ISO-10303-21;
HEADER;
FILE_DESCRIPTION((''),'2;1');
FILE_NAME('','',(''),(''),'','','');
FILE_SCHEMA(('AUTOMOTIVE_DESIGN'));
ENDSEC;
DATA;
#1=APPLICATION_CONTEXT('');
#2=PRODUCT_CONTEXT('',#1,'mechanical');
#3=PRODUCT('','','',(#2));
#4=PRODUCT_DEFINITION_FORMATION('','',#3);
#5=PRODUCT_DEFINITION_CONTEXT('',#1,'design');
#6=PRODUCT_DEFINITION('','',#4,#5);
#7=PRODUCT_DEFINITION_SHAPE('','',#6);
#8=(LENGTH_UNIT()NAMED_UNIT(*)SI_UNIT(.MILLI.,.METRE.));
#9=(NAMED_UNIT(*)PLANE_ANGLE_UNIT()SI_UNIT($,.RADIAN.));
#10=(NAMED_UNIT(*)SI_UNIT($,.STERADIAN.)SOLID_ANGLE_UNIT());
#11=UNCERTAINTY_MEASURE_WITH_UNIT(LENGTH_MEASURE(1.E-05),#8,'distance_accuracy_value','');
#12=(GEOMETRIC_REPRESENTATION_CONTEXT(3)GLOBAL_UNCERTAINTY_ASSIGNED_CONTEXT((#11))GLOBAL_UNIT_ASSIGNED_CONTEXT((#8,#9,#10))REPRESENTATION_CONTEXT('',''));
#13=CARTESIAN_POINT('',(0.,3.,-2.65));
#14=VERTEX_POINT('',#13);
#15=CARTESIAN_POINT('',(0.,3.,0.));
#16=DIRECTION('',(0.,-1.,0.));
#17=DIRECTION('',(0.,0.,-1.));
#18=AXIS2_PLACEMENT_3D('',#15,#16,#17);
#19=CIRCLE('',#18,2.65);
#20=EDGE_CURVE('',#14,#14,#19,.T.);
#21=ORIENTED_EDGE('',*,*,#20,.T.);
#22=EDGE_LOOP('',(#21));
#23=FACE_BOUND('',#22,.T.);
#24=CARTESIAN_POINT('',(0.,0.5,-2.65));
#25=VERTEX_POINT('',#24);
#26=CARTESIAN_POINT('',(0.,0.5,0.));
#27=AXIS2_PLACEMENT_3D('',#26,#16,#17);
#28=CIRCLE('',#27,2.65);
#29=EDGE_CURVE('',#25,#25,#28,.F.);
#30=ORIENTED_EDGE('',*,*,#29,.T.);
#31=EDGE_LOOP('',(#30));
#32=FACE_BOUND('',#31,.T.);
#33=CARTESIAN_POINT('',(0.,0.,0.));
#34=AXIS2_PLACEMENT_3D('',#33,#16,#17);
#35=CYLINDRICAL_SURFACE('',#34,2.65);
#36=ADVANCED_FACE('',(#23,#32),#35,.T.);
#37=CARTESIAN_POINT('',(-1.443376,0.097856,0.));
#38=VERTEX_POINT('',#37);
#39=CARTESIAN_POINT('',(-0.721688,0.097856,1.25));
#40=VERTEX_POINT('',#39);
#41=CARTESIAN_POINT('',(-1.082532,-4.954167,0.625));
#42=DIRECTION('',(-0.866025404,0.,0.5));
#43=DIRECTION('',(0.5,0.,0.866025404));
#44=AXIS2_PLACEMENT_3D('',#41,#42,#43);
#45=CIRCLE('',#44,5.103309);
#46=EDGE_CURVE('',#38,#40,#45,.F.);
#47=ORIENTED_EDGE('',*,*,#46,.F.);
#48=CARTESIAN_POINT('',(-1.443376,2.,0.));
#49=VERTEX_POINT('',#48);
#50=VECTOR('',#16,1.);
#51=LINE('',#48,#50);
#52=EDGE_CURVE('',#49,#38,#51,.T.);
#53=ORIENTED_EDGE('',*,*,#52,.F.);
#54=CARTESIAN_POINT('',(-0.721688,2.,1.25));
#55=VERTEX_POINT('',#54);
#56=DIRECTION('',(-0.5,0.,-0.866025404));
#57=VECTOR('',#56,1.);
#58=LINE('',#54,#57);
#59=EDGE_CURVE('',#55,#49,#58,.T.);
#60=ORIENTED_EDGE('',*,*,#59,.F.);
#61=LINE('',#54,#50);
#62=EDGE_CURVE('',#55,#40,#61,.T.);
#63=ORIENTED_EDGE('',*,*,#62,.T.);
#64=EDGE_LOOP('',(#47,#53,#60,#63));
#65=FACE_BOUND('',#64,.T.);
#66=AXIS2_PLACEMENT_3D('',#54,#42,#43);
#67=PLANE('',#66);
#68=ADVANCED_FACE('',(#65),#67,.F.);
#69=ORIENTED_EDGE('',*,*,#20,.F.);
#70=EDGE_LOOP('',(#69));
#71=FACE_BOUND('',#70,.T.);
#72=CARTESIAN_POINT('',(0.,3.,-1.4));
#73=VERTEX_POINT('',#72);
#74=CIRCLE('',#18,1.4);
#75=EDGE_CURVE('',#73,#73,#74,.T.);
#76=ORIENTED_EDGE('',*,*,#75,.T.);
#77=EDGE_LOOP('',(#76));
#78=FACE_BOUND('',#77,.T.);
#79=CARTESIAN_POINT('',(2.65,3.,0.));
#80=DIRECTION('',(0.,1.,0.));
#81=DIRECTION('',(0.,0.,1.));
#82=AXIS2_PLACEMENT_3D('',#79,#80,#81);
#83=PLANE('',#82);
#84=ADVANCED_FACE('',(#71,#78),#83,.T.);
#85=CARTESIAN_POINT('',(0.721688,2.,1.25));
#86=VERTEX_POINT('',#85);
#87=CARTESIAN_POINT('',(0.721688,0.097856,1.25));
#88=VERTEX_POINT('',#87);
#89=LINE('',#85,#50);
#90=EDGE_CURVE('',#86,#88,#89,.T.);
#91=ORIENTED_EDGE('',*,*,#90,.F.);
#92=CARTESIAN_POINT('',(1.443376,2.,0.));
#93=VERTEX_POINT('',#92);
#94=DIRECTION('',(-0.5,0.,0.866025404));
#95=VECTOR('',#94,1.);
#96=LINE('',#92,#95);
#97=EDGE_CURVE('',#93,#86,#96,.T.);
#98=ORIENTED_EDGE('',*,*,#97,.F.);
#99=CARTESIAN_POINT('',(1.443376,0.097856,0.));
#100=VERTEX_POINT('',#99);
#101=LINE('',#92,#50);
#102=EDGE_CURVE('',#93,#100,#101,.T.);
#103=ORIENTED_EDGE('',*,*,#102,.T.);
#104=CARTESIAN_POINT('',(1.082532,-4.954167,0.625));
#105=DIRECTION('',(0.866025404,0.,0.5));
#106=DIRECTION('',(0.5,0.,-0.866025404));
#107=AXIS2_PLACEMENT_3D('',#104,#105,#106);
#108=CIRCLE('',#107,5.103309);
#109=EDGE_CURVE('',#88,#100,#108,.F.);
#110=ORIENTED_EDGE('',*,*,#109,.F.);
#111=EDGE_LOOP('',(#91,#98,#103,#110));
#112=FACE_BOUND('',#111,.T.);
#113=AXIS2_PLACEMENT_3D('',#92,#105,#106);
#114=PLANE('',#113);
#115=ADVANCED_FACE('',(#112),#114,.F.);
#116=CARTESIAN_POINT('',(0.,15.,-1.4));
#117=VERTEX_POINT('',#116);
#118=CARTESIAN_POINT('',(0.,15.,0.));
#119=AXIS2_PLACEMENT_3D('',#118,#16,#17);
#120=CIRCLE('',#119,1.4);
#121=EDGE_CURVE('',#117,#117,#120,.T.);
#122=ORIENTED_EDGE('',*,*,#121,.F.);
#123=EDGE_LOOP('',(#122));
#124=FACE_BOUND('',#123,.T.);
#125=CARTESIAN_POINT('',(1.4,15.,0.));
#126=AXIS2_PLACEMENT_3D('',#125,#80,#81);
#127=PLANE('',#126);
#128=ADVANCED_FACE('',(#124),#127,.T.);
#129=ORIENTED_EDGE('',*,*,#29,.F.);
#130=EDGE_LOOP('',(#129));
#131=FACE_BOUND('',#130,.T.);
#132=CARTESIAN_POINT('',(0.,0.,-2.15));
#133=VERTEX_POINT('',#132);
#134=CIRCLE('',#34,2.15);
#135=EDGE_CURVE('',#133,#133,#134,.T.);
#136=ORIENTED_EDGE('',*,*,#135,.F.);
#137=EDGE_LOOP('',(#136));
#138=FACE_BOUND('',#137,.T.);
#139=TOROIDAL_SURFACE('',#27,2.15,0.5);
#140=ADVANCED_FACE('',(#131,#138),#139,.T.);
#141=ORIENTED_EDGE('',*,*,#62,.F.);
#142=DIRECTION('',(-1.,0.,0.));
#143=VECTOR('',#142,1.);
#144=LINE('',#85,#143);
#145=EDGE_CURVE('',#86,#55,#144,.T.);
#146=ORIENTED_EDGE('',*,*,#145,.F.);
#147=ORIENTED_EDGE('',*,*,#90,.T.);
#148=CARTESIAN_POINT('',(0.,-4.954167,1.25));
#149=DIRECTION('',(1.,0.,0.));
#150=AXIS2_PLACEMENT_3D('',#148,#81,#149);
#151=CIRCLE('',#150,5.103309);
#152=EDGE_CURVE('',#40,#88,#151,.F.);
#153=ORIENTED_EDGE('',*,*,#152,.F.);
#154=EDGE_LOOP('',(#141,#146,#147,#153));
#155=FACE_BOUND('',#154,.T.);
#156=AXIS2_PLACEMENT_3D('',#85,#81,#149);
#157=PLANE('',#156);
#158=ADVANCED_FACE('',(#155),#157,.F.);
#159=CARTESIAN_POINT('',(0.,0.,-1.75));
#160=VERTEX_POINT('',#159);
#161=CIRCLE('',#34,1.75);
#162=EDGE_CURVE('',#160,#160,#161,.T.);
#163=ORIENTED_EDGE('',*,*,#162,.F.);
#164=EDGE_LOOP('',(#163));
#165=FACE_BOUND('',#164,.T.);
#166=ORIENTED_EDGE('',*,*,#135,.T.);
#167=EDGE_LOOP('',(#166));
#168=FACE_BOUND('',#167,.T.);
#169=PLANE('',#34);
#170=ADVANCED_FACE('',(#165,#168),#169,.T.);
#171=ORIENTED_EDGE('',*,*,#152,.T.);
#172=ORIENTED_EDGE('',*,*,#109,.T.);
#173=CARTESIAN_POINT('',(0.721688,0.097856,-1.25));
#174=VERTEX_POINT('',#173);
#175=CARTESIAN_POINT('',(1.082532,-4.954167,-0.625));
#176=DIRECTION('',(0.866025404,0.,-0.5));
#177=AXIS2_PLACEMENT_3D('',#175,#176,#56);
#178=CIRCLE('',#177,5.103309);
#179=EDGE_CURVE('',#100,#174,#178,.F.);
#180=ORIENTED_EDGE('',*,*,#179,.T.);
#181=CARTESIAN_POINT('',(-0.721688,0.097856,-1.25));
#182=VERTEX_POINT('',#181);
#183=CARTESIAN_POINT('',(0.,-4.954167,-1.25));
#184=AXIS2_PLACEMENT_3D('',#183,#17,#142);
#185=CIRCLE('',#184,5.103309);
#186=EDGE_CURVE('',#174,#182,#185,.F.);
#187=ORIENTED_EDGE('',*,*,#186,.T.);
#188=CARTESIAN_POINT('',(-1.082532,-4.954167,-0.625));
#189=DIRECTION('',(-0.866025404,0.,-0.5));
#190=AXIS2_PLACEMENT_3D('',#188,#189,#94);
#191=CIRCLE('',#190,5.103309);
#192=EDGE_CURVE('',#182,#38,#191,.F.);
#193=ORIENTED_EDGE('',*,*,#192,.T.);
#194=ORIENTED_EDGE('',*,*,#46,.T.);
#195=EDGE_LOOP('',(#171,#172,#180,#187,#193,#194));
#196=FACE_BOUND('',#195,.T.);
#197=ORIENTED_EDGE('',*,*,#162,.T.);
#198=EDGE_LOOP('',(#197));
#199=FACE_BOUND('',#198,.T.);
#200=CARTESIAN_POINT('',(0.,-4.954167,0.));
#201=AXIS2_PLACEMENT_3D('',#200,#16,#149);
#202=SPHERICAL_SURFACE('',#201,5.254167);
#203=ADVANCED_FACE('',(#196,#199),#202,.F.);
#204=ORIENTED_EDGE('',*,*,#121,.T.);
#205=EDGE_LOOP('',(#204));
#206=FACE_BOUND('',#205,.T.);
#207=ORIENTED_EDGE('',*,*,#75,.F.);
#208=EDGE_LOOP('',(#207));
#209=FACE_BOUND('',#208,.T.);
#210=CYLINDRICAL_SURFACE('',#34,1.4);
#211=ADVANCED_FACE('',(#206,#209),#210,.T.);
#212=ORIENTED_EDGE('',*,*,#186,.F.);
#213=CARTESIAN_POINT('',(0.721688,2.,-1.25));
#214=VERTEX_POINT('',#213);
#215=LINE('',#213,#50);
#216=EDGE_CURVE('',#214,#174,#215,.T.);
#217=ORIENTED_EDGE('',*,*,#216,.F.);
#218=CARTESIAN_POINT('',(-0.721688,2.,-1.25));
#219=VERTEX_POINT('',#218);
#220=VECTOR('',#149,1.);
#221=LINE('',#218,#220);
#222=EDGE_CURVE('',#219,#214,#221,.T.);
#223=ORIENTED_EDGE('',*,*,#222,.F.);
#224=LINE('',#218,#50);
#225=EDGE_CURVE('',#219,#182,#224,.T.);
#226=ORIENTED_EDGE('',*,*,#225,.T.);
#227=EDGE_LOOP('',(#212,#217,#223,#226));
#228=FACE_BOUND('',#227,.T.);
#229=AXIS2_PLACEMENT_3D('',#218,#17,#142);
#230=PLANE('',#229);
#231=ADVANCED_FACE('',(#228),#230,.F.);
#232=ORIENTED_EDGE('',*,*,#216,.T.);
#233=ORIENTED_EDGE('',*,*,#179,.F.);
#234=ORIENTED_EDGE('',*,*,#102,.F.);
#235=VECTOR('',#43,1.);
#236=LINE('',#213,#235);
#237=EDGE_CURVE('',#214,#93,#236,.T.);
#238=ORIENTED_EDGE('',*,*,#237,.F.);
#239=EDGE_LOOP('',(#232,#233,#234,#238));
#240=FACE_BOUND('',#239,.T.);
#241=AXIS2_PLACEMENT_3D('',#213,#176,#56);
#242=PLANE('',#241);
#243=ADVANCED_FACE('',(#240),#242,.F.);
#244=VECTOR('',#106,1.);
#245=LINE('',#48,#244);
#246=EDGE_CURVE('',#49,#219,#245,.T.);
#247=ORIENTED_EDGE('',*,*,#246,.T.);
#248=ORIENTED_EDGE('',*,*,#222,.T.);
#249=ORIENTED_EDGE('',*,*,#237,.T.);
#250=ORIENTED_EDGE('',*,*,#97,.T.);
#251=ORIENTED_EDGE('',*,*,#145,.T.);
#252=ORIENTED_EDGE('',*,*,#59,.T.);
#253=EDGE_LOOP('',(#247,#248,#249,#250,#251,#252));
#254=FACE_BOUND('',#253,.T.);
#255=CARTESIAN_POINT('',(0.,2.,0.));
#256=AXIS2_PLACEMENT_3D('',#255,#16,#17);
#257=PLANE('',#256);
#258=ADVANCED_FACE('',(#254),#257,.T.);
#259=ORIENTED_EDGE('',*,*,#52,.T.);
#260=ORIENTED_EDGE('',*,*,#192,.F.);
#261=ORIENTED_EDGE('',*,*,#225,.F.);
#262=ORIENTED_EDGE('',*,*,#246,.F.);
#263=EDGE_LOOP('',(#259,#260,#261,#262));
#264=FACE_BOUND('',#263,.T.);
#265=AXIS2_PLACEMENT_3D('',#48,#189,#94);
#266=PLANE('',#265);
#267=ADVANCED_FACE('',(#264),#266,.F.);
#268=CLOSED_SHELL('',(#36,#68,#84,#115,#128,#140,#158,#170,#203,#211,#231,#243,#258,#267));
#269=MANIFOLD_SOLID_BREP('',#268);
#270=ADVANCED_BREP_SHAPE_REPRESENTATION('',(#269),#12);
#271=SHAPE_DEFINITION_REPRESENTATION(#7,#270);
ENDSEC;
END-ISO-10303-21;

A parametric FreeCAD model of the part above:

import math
import FreeCAD as App
import Part
import Sketcher
from FreeCAD import Vector
Q = App.Units.Quantity


def edges_at(feature, points):
    """Names of the edges that pass closest to the given points."""
    edges = feature.Shape.Edges
    near = lambda p: min(range(len(edges)), key=lambda i: edges[i].distToShape(Part.Vertex(*p))[0])
    return sorted({f"Edge{near(p) + 1}" for p in points})

doc = App.newDocument("Part")
body = doc.addObject("PartDesign::Body", "Body")

# Sketch on XY plane
sketch1 = body.newObject("Sketcher::SketchObject", "Sketch")
sketch1.AttachmentSupport = (doc.getObject("XY_Plane"), [""])
sketch1.MapMode = "FlatFace"
sketch1.addGeometry([
    Part.LineSegment(Vector(0, 0, 0), Vector(2.65, 0, 0)),  # 0
    Part.LineSegment(Vector(2.65, 0, 0), Vector(2.65, 3, 0)),  # 1
    Part.LineSegment(Vector(2.65, 3, 0), Vector(1.4, 3, 0)),  # 2
    Part.LineSegment(Vector(1.4, 3, 0), Vector(1.4, 15, 0)),  # 3
    Part.LineSegment(Vector(1.4, 15, 0), Vector(0, 15, 0)),  # 4
    Part.LineSegment(Vector(0, 15, 0), Vector(0, 0, 0)),  # 5
], False)
sketch1.addConstraint([
    Sketcher.Constraint("Coincident", 0, 2, 1, 1),
    Sketcher.Constraint("Coincident", 1, 2, 2, 1),
    Sketcher.Constraint("Coincident", 2, 2, 3, 1),
    Sketcher.Constraint("Coincident", 3, 2, 4, 1),
    Sketcher.Constraint("Coincident", 4, 2, 5, 1),
    Sketcher.Constraint("Coincident", 5, 2, 0, 1),
    Sketcher.Constraint("Horizontal", 0),
    Sketcher.Constraint("Vertical", 1),
    Sketcher.Constraint("Horizontal", 2),
    Sketcher.Constraint("Vertical", 3),
    Sketcher.Constraint("Horizontal", 4),
    Sketcher.Constraint("Vertical", 5),
    Sketcher.Constraint("Coincident", 5, 2, -1, 1),
    Sketcher.Constraint("DistanceY", 1, 1, 1, 2, Q("3 mm")),
    Sketcher.Constraint("DistanceY", 3, 1, 3, 2, Q("12 mm")),
    Sketcher.Constraint("DistanceX", 4, 2, 4, 1, Q("1.4 mm")),
    Sketcher.Constraint("DistanceX", 0, 1, 0, 2, Q("2.65 mm")),
])
revolution = body.newObject("PartDesign::Revolution", "Revolution")
revolution.Profile = sketch1
revolution.ReferenceAxis = (sketch1, ["V_Axis"])
revolution.Angle = 360

# Sketch on XZ plane
sketch2 = body.newObject("Sketcher::SketchObject", "Sketch001")
sketch2.AttachmentSupport = (doc.getObject("XZ_Plane"), [""])
sketch2.MapMode = "FlatFace"
sketch2.addGeometry([
    Part.LineSegment(Vector(-1.443376, 0, 0), Vector(-0.721688, -1.25, 0)),  # 0
    Part.LineSegment(Vector(-0.721688, -1.25, 0), Vector(0.721688, -1.25, 0)),  # 1
    Part.LineSegment(Vector(0.721688, -1.25, 0), Vector(1.443376, 0, 0)),  # 2
    Part.LineSegment(Vector(1.443376, 0, 0), Vector(0.721688, 1.25, 0)),  # 3
    Part.LineSegment(Vector(0.721688, 1.25, 0), Vector(-0.721688, 1.25, 0)),  # 4
    Part.LineSegment(Vector(-0.721688, 1.25, 0), Vector(-1.443376, 0, 0)),  # 5
], False)
sketch2.addConstraint([
    Sketcher.Constraint("Coincident", 0, 2, 1, 1),
    Sketcher.Constraint("Coincident", 1, 2, 2, 1),
    Sketcher.Constraint("Coincident", 2, 2, 3, 1),
    Sketcher.Constraint("Coincident", 3, 2, 4, 1),
    Sketcher.Constraint("Coincident", 4, 2, 5, 1),
    Sketcher.Constraint("Coincident", 5, 2, 0, 1),
    Sketcher.Constraint("Horizontal", 1),
    Sketcher.Constraint("Horizontal", 4),
    Sketcher.Constraint("Symmetric", 0, 2, 3, 2, -1, 1),
    Sketcher.Constraint("Symmetric", 2, 2, 5, 2, -1, 1),
    Sketcher.Constraint("PointOnObject", 2, 2, -1),
    Sketcher.Constraint("Parallel", 2, 5),
    Sketcher.Constraint("Vertical", 1, 2, 3, 2),
    Sketcher.Constraint("Angle", 0, Q("-60 deg")),
    Sketcher.Constraint("DistanceY", 1, 2, 3, 2, Q("2.5 mm")),
    Sketcher.Constraint("DistanceX", 1, 1, 1, 2, Q("1.443376 mm")),
])
pocket1 = body.newObject("PartDesign::Pocket", "Pocket")
pocket1.Profile = sketch2
pocket1.Length = 2

# Sketch on XY plane
sketch3 = body.newObject("Sketcher::SketchObject", "Sketch002")
sketch3.AttachmentSupport = (doc.getObject("XY_Plane"), [""])
sketch3.MapMode = "FlatFace"
sketch3.addGeometry([
    Part.LineSegment(Vector(0, 0, 0), Vector(0, 0.3, 0)),
    Part.ArcOfCircle(Part.Circle(Vector(0, -4.954167, 0), Vector(0, 0, 1), 5.254167), math.radians(70.544843), math.radians(90)),
    Part.LineSegment(Vector(1.75, 0, 0), Vector(0, 0, 0)),
], False)
sketch3.addConstraint([
    Sketcher.Constraint("Coincident", 0, 2, 1, 2),
    Sketcher.Constraint("Coincident", 1, 1, 2, 1),
    Sketcher.Constraint("Coincident", 2, 2, 0, 1),
    Sketcher.Constraint("Vertical", 0),
    Sketcher.Constraint("Horizontal", 2),
    Sketcher.Constraint("Coincident", 2, 2, -1, 1),
    Sketcher.Constraint("PointOnObject", 1, 3, -2),
    Sketcher.Constraint("DistanceY", 0, 1, 0, 2, Q("0.3 mm")),
    Sketcher.Constraint("DistanceX", 2, 2, 2, 1, Q("1.75 mm")),
])
groove = body.newObject("PartDesign::Groove", "Groove")
groove.Profile = sketch3
groove.ReferenceAxis = (sketch3, ["V_Axis"])
groove.Angle = 360
doc.recompute()

fillet = body.newObject("PartDesign::Fillet", "Fillet")
fillet.Base = (groove, edges_at(groove, [(-2.65, 0, 0)]))
fillet.Radius = 0.5

doc.recompute()
